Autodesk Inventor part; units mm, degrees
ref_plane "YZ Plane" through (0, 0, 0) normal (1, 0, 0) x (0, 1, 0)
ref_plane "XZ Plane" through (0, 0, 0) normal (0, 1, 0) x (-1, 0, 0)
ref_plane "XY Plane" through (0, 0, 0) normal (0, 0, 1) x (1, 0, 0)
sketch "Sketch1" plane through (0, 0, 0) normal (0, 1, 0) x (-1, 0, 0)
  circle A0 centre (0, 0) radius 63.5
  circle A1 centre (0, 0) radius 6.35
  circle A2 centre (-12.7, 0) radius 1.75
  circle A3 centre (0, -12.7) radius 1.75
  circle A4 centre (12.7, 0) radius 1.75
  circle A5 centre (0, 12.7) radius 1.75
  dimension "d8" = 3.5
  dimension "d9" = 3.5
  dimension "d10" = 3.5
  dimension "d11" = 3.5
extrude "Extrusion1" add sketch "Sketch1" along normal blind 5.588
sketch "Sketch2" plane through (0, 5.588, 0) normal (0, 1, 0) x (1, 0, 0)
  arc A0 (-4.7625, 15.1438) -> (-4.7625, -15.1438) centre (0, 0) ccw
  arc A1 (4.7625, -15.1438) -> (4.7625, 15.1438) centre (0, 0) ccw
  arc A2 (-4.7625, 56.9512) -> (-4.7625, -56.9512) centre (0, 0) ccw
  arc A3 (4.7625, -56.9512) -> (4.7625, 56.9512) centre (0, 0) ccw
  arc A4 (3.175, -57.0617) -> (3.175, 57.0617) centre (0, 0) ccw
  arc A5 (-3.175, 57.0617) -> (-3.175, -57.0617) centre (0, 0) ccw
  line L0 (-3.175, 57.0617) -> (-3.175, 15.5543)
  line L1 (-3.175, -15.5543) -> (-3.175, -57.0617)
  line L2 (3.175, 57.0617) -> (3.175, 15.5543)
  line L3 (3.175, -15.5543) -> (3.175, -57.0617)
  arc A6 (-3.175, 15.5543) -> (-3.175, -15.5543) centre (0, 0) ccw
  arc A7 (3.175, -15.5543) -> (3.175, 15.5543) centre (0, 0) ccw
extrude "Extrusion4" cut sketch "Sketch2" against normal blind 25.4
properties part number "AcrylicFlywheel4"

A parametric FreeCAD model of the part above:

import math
import FreeCAD as App
import Part
import Sketcher
Q = App.Units.Quantity

doc = App.newDocument("Part")
body = doc.addObject("PartDesign::Body", "Body")

sketch1 = body.newObject("Sketcher::SketchObject", "Sketch")
sketch1.AttachmentSupport = (doc.getObject("XZ_Plane"), [""])
sketch1.MapMode = "FlatFace"
sketch1.addGeometry([
    Part.Circle(App.Vector(0, 0, 0), App.Vector(0, 0, 1), 63.5),
    Part.Circle(App.Vector(0, -12.7, 0), App.Vector(0, 0, 1), 1.8),
    Part.Circle(App.Vector(12.7, 0, 0), App.Vector(0, 0, 1), 1.8),
    Part.Circle(App.Vector(0, 0, 0), App.Vector(0, 0, 1), 6.3),
    Part.Circle(App.Vector(-12.7, 0, 0), App.Vector(0, 0, 1), 1.8),
    Part.Circle(App.Vector(0, 12.7, 0), App.Vector(0, 0, 1), 1.8),
], False)
sketch1.addConstraint([
    Sketcher.Constraint("Coincident", 0, 3, -1, 1),
    Sketcher.Constraint("Coincident", 3, 3, -1, 1),
    Sketcher.Constraint("Equal", 1, 2),
    Sketcher.Constraint("Equal", 2, 4),
    Sketcher.Constraint("Equal", 4, 5),
    Sketcher.Constraint("Symmetric", 2, 3, 4, 3, -1, 1),
    Sketcher.Constraint("Symmetric", 1, 3, 5, 3, -1, 1),
    Sketcher.Constraint("PointOnObject", 1, 3, -2),
    Sketcher.Constraint("PointOnObject", 2, 3, -1),
    Sketcher.Constraint("Diameter", 0, Q("5 in")),
    Sketcher.Constraint("Diameter", 1, Q("0.1378 in")),
    Sketcher.Constraint("Diameter", 3, Q("0.5 in")),
    Sketcher.Constraint("DistanceX", 4, 3, 2, 3, Q("1 in")),
    Sketcher.Constraint("DistanceY", 1, 3, 5, 3, Q("1 in")),
])
pad1 = body.newObject("PartDesign::Pad", "Pad")
pad1.Profile = sketch1
pad1.Length = Q("0.22 in")
pad1.Reversed = True

sketch2 = body.newObject("Sketcher::SketchObject", "Sketch001")
sketch2.AttachmentSupport = (doc.getObject("XZ_Plane"), [""])
sketch2.MapMode = "FlatFace"
sketch2.AttachmentOffset = App.Placement(App.Vector(0, 0, -0.22 * 25.4), App.Rotation())
sketch2.addGeometry([
    Part.ArcOfCircle(Part.Circle(App.Vector(0, 0, 0), App.Vector(0, 0, 1), 16), math.radians(102), math.radians(258)),
    Part.LineSegment(App.Vector(-3, -16, 0), App.Vector(-3, -57, 0)),
    Part.ArcOfCircle(Part.Circle(App.Vector(0, 0, 0), App.Vector(0, 0, 1), 57), math.radians(93), math.radians(267)),
    Part.LineSegment(App.Vector(-3, 57, 0), App.Vector(-3, 16, 0)),
    Part.ArcOfCircle(Part.Circle(App.Vector(0, 0, 0), App.Vector(0, 0, 1), 16), math.radians(-78), math.radians(78)),
    Part.LineSegment(App.Vector(3, 16, 0), App.Vector(3, 57, 0)),
    Part.ArcOfCircle(Part.Circle(App.Vector(0, 0, 0), App.Vector(0, 0, 1), 57), math.radians(-87), math.radians(87)),
    Part.LineSegment(App.Vector(3, -57, 0), App.Vector(3, -16, 0)),
], False)
sketch2.addConstraint([
    Sketcher.Constraint("Coincident", 0, 2, 1, 1),
    Sketcher.Constraint("Coincident", 1, 2, 2, 2),
    Sketcher.Constraint("Coincident", 2, 1, 3, 1),
    Sketcher.Constraint("Coincident", 3, 2, 0, 1),
    Sketcher.Constraint("Coincident", 4, 2, 5, 1),
    Sketcher.Constraint("Coincident", 5, 2, 6, 2),
    Sketcher.Constraint("Coincident", 6, 1, 7, 1),
    Sketcher.Constraint("Coincident", 7, 2, 4, 1),
    Sketcher.Constraint("Vertical", 1),
    Sketcher.Constraint("Vertical", 3),
    Sketcher.Constraint("Vertical", 5),
    Sketcher.Constraint("Vertical", 7),
    Sketcher.Constraint("Coincident", 0, 3, -1, 1),
    Sketcher.Constraint("Coincident", 2, 3, -1, 1),
    Sketcher.Constraint("Coincident", 4, 3, -1, 1),
    Sketcher.Constraint("Coincident", 6, 3, -1, 1),
    Sketcher.Constraint("Equal", 0, 4),
    Sketcher.Constraint("Equal", 2, 6),
    Sketcher.Constraint("Horizontal", 3, 2, 4, 2),
    Sketcher.Constraint("Horizontal", 1, 2, 6, 1),
    Sketcher.Constraint("Vertical", 1, 2, 2, 1),
    Sketcher.Constraint("Radius", 2, Q("2.25 in")),
    Sketcher.Constraint("Radius", 0, Q("0.625 in")),
    Sketcher.Constraint("DistanceX", 3, 2, 4, 2, Q("0.25 in")),
])
pocket1 = body.newObject("PartDesign::Pocket", "Pocket")
pocket1.Profile = sketch2
pocket1.Length = Q("1 in")
pocket1.Reversed = True

doc.recompute()
